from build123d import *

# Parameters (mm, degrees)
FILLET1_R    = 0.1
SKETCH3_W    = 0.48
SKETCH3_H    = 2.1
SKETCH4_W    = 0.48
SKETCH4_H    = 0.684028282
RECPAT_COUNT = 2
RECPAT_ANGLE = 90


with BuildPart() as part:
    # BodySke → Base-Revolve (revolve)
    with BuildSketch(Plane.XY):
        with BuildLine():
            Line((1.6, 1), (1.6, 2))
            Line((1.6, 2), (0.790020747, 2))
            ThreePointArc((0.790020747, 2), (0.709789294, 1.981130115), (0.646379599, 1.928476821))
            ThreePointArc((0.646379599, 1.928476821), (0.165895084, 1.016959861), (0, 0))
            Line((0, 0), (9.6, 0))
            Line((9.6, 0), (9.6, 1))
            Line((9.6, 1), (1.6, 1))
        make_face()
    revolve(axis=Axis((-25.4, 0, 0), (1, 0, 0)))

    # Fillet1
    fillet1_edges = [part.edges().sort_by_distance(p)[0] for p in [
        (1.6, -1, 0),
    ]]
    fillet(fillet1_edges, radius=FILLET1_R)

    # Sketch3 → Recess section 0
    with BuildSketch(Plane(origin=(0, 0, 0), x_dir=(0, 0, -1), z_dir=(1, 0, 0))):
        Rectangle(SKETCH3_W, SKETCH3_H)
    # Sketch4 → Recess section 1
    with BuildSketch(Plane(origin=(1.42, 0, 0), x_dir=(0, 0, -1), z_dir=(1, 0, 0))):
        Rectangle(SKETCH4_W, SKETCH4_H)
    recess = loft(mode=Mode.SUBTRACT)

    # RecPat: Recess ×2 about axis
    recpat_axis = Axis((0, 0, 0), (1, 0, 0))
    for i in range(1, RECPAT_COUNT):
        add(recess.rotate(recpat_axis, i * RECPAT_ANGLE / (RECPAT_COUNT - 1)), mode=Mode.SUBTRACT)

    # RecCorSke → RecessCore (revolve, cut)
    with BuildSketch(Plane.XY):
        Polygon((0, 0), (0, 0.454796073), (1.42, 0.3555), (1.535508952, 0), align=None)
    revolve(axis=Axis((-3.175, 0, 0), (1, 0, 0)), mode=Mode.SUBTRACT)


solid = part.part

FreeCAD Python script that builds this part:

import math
import FreeCAD as App
import Part
import Sketcher
from FreeCAD import Vector
Q = App.Units.Quantity


def edges_at(feature, points):
    """Names of the edges that pass closest to the given points."""
    edges = feature.Shape.Edges
    near = lambda p: min(range(len(edges)), key=lambda i: edges[i].distToShape(Part.Vertex(*p))[0])
    return sorted({f"Edge{near(p) + 1}" for p in points})

doc = App.newDocument("Part")
params = doc.addObject("Spreadsheet::Sheet", "Params")
for row, (alias, value) in enumerate([
    ("sketch1_radius", "3.2 mm"),
    ("sketch1_width", "8 mm"),
    ("sketch1_height", "1 mm"),
    ("sketch1_radius2", "0.18 mm"),
    ("sketch1_width2", "9.6 mm"),
    ("revolution_angle", "360 deg"),
    ("fillet_radius", "0.1 mm"),
    ("sketch2_width", "2.1 mm"),
    ("sketch2_height", "0.48 mm"),
    ("sketch3_height", "0.48 mm"),
    ("groove_angle", "360 deg"),
], start=1):
    params.set(f"A{row}", alias)
    params.set(f"B{row}", "=" + value)
    params.setAlias(f"B{row}", alias)

body = doc.addObject("PartDesign::Body", "Body")

sketch1 = body.newObject("Sketcher::SketchObject", "Sketch")
sketch1.AttachmentSupport = (doc.getObject("XY_Plane"), [""])
sketch1.MapMode = "FlatFace"
sketch1.addGeometry([
    Part.LineSegment(Vector(1.6, 1, 0), Vector(1.6, 2, 0)),
    Part.LineSegment(Vector(1.6, 2, 0), Vector(0.790021, 2, 0)),
    Part.ArcOfCircle(Part.Circle(Vector(0.790021, 1.82, 0), Vector(0, 0, 1), 0.18), math.radians(90), math.radians(142.940145)),
    Part.ArcOfCircle(Part.Circle(Vector(3.2, 0, 0), Vector(0, 0, 1), 3.2), math.radians(142.940145), math.radians(180)),
    Part.LineSegment(Vector(0, 0, 0), Vector(9.6, 0, 0)),
    Part.LineSegment(Vector(9.6, 0, 0), Vector(9.6, 1, 0)),
    Part.LineSegment(Vector(9.6, 1, 0), Vector(1.6, 1, 0)),
], False)
sketch1.addConstraint([
    Sketcher.Constraint("Coincident", 0, 2, 1, 1),
    Sketcher.Constraint("Tangent", 1, 2, 2, 1),
    Sketcher.Constraint("Tangent", 2, 2, 3, 1),
    Sketcher.Constraint("Coincident", 3, 2, 4, 1),
    Sketcher.Constraint("Coincident", 4, 2, 5, 1),
    Sketcher.Constraint("Coincident", 5, 2, 6, 1),
    Sketcher.Constraint("Coincident", 6, 2, 0, 1),
    Sketcher.Constraint("Vertical", 0),
    Sketcher.Constraint("Horizontal", 1),
    Sketcher.Constraint("Horizontal", 4),
    Sketcher.Constraint("Vertical", 5),
    Sketcher.Constraint("Horizontal", 6),
    Sketcher.Constraint("Coincident", 3, 2, -1, 1),
    Sketcher.Constraint("PointOnObject", 3, 3, -1),
    Sketcher.Constraint("Equal", 0, 5),
    Sketcher.Constraint("Radius", 3, 3.2),
    Sketcher.Constraint("DistanceX", 6, 2, 6, 1, 8.0),
    Sketcher.Constraint("DistanceY", 0, 1, 0, 2, 1.0),
    Sketcher.Constraint("Radius", 2, 0.18),
    Sketcher.Constraint("DistanceX", 4, 1, 4, 2, 9.6),
])
sketch1.setExpression("Constraints[15]", "Params.sketch1_radius")
sketch1.setExpression("Constraints[16]", "Params.sketch1_width")
sketch1.setExpression("Constraints[17]", "Params.sketch1_height")
sketch1.setExpression("Constraints[18]", "Params.sketch1_radius2")
sketch1.setExpression("Constraints[19]", "Params.sketch1_width2")
revolution = body.newObject("PartDesign::Revolution", "Revolution")
revolution.Profile = sketch1
revolution.ReferenceAxis = (sketch1, ["H_Axis"])
revolution.setExpression("Angle", "Params.revolution_angle")
doc.recompute()

fillet = body.newObject("PartDesign::Fillet", "Fillet")
fillet.Base = (revolution, edges_at(revolution, [(1.6, -1, 0)]))
fillet.setExpression("Radius", "Params.fillet_radius")

sketch2 = body.newObject("Sketcher::SketchObject", "Sketch001")
sketch2.AttachmentSupport = (doc.getObject("YZ_Plane"), [""])
sketch2.MapMode = "FlatFace"
sketch2.addGeometry([
    Part.LineSegment(Vector(1.05, 0.24, 0), Vector(-1.05, 0.24, 0)),
    Part.LineSegment(Vector(-1.05, 0.24, 0), Vector(-1.05, -0.24, 0)),
    Part.LineSegment(Vector(-1.05, -0.24, 0), Vector(1.05, -0.24, 0)),
    Part.LineSegment(Vector(1.05, -0.24, 0), Vector(1.05, 0.24, 0)),
], False)
sketch2.addConstraint([
    Sketcher.Constraint("Coincident", 0, 2, 1, 1),
    Sketcher.Constraint("Coincident", 1, 2, 2, 1),
    Sketcher.Constraint("Coincident", 2, 2, 3, 1),
    Sketcher.Constraint("Coincident", 3, 2, 0, 1),
    Sketcher.Constraint("Horizontal", 0),
    Sketcher.Constraint("Vertical", 1),
    Sketcher.Constraint("Horizontal", 2),
    Sketcher.Constraint("Vertical", 3),
    Sketcher.Constraint("Symmetric", 0, 2, 2, 2, -1, 1),
    Sketcher.Constraint("DistanceX", 0, 2, 0, 1, 2.1),
    Sketcher.Constraint("DistanceY", 1, 2, 1, 1, 0.48),
])
sketch2.setExpression("Constraints[9]", "Params.sketch2_width")
sketch2.setExpression("Constraints[10]", "Params.sketch2_height")

sketch3 = body.newObject("Sketcher::SketchObject", "Sketch002")
sketch3.AttachmentSupport = (doc.getObject("YZ_Plane"), [""])
sketch3.MapMode = "FlatFace"
sketch3.AttachmentOffset = App.Placement(Vector(0, 0, 1.42), App.Rotation())
sketch3.addGeometry([
    Part.LineSegment(Vector(0.342014, 0.24, 0), Vector(-0.342014, 0.24, 0)),
    Part.LineSegment(Vector(-0.342014, 0.24, 0), Vector(-0.342014, -0.24, 0)),
    Part.LineSegment(Vector(-0.342014, -0.24, 0), Vector(0.342014, -0.24, 0)),
    Part.LineSegment(Vector(0.342014, -0.24, 0), Vector(0.342014, 0.24, 0)),
], False)
sketch3.addConstraint([
    Sketcher.Constraint("Coincident", 0, 2, 1, 1),
    Sketcher.Constraint("Coincident", 1, 2, 2, 1),
    Sketcher.Constraint("Coincident", 2, 2, 3, 1),
    Sketcher.Constraint("Coincident", 3, 2, 0, 1),
    Sketcher.Constraint("Horizontal", 0),
    Sketcher.Constraint("Vertical", 1),
    Sketcher.Constraint("Horizontal", 2),
    Sketcher.Constraint("Vertical", 3),
    Sketcher.Constraint("Symmetric", 0, 2, 2, 2, -1, 1),
    Sketcher.Constraint("DistanceY", 1, 2, 1, 1, 0.48),
    Sketcher.Constraint("DistanceX", 0, 2, 0, 1, 0.684028),
])
sketch3.setExpression("Constraints[9]", "Params.sketch3_height")

subtractiveloft = body.newObject("PartDesign::SubtractiveLoft", "SubtractiveLoft")
subtractiveloft.Profile = sketch2
subtractiveloft.Sections = [sketch3]
doc.recompute()

polarpattern = body.newObject("PartDesign::PolarPattern", "PolarPattern")
polarpattern.Originals = [subtractiveloft]
polarpattern.Axis = (doc.getObject("X_Axis"), [""])
polarpattern.Angle = 90
polarpattern.Occurrences = 2
body.Tip = polarpattern

sketch4 = body.newObject("Sketcher::SketchObject", "Sketch003")
sketch4.AttachmentSupport = (doc.getObject("XY_Plane"), [""])
sketch4.MapMode = "FlatFace"
sketch4.addGeometry([
    Part.LineSegment(Vector(0, 0.454796, 0), Vector(0, 0, 0)),
    Part.LineSegment(Vector(0, 0, 0), Vector(1.535509, 0, 0)),
    Part.LineSegment(Vector(1.535509, 0, 0), Vector(1.42, 0.3555, 0)),
    Part.LineSegment(Vector(1.42, 0.3555, 0), Vector(0, 0.454796, 0)),
], False)
sketch4.addConstraint([
    Sketcher.Constraint("Coincident", 0, 2, 1, 1),
    Sketcher.Constraint("Coincident", 1, 2, 2, 1),
    Sketcher.Constraint("Coincident", 2, 2, 3, 1),
    Sketcher.Constraint("Coincident", 3, 2, 0, 1),
    Sketcher.Constraint("Vertical", 0),
    Sketcher.Constraint("Horizontal", 1),
    Sketcher.Constraint("Coincident", 0, 2, -1, 1),
    Sketcher.Constraint("Angle", 2, Q("108 deg")),
    Sketcher.Constraint("Angle", 3, Q("176 deg")),
    Sketcher.Constraint("DistanceX", -1, 1, 2, 2, 1.42),
    Sketcher.Constraint("DistanceX", 1, 1, 1, 2, 1.535509),
])
groove = body.newObject("PartDesign::Groove", "Groove")
groove.Profile = sketch4
groove.ReferenceAxis = (sketch4, ["H_Axis"])
groove.setExpression("Angle", "Params.groove_angle")

doc.recompute()
